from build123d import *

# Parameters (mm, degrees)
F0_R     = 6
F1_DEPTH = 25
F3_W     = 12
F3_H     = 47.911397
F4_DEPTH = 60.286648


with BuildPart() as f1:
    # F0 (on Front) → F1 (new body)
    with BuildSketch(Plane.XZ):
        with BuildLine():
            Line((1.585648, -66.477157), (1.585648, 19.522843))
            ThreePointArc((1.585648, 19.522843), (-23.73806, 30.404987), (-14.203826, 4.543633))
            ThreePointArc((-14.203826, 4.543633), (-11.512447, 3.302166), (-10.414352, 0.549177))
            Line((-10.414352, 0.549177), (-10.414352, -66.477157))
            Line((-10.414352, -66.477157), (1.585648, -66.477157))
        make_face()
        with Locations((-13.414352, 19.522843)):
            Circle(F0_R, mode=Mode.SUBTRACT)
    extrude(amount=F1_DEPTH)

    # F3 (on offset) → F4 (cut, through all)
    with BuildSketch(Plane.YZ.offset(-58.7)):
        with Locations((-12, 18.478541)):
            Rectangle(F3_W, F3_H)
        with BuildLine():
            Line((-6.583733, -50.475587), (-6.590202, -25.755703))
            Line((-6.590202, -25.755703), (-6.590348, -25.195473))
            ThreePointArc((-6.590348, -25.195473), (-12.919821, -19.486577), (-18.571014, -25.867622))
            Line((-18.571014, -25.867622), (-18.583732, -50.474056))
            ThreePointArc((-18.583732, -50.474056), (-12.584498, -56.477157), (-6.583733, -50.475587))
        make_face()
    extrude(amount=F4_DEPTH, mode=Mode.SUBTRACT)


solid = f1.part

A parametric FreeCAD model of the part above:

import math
import FreeCAD as App
import Part
import Sketcher

V = App.Vector
Q = App.Units.Quantity


def add_polygon(sketch, points):
    """Adds a closed chain of lines whose ends are joined by coincident constraints."""
    first, n = sketch.GeometryCount, len(points)
    for a, b in zip(points, points[1:] + points[:1]):
        sketch.addGeometry(Part.LineSegment(App.Vector(*a, 0), App.Vector(*b, 0)), False)
    for i in range(n):
        sketch.addConstraint(Sketcher.Constraint("Coincident", first + i, 2, first + (i + 1) % n, 1))

doc = App.newDocument("Part")
body = doc.addObject("PartDesign::Body", "Body")

# Sketch on XZ plane
sketch1 = body.newObject("Sketcher::SketchObject", "Sketch")
sketch1.AttachmentSupport = (doc.getObject("XZ_Plane"), [""])
sketch1.MapMode = "FlatFace"
sketch1.addGeometry([
    Part.LineSegment(V(1.6, -66.5, 0), V(1.6, 19.5, 0)),  # 0
    Part.ArcOfCircle(Part.Circle(V(-13.4, 19.5, 0), V(0, 0, 1), 15), math.radians(0), math.radians(267)),  # 1
    Part.ArcOfCircle(Part.Circle(V(-14.4, 0.5, 0), V(0, 0, 1), 4), math.radians(0), math.radians(87)),  # 2
    Part.LineSegment(V(-10.4, 0.5, 0), V(-10.4, -66.5, 0)),  # 3
    Part.LineSegment(V(-10.4, -66.5, 0), V(1.6, -66.5, 0)),  # 4
    Part.Circle(V(-13.4, 19.5, 0), V(0, 0, 1), 6),  # 5
], False)
sketch1.addConstraint([
    Sketcher.Constraint("Tangent", 0, 2, 1, 1),
    Sketcher.Constraint("Tangent", 1, 2, 2, 2),
    Sketcher.Constraint("Tangent", 2, 1, 3, 1),
    Sketcher.Constraint("Coincident", 3, 2, 4, 1),
    Sketcher.Constraint("Coincident", 4, 2, 0, 1),
    Sketcher.Constraint("Vertical", 0),
    Sketcher.Constraint("Vertical", 3),
    Sketcher.Constraint("Horizontal", 4),
    Sketcher.Constraint("Coincident", 5, 3, 1, 3),
    Sketcher.Constraint("Diameter", 5, Q("12 mm")),
    Sketcher.Constraint("Radius", 1, Q("15 mm")),
    Sketcher.Constraint("Radius", 2, Q("4 mm")),
    Sketcher.Constraint("DistanceX", 4, 1, 4, 2, Q("12 mm")),
    Sketcher.Constraint("DistanceY", 0, 1, 0, 2, Q("86 mm")),
    Sketcher.Constraint("DistanceX", 2, 3, -1, 1, Q("14.414352 mm")),
    Sketcher.Constraint("DistanceY", -1, 1, 1, 3, Q("19.522843 mm")),
])
pad1 = body.newObject("PartDesign::Pad", "Pad")
pad1.Profile = sketch1
pad1.Length = 25

# Sketch on YZ plane
sketch2 = body.newObject("Sketcher::SketchObject", "Sketch001")
sketch2.AttachmentSupport = (doc.getObject("YZ_Plane"), [""])
sketch2.MapMode = "FlatFace"
sketch2.AttachmentOffset = App.Placement(V(0, 0, -58.7), App.Rotation())
add_polygon(sketch2, [(-18, 42.4), (-18, -5.5), (-6, -5.5), (-6, 42.4)])  # lines 0-3
sketch2.addGeometry(Part.LineSegment(V(-6.6, -50.5, 0), V(-6.6, -25.8, 0)), False)  # 4
sketch2.addGeometry(Part.LineSegment(V(-6.6, -25.8, 0), V(-6.6, -25.2, 0)), False)  # 5
sketch2.addGeometry(Part.ArcOfCircle(Part.Circle(V(-12.6, -25.5, 0), V(0, 0, 1), 6), math.radians(3), math.radians(184)), False)  # 6
sketch2.addGeometry(Part.LineSegment(V(-18.6, -25.9, 0), V(-18.6, -50.5, 0)), False)  # 7
sketch2.addGeometry(Part.ArcOfCircle(Part.Circle(V(-12.6, -50.5, 0), V(0, 0, 1), 6), math.radians(180), math.radians(360)), False)  # 8
sketch2.addConstraint([
    Sketcher.Constraint("Coincident", 4, 2, 5, 1),
    Sketcher.Constraint("Coincident", 5, 2, 6, 1),
    Sketcher.Constraint("Coincident", 6, 2, 7, 1),
    Sketcher.Constraint("Tangent", 7, 2, 8, 1),
    Sketcher.Constraint("Tangent", 8, 2, 4, 1),
    Sketcher.Constraint("Vertical", 0),
    Sketcher.Constraint("Horizontal", 1),
    Sketcher.Constraint("Vertical", 2),
    Sketcher.Constraint("Horizontal", 3),
    Sketcher.Constraint("Equal", 6, 8),
    Sketcher.Constraint("Parallel", 4, 5),
    Sketcher.Constraint("Vertical", 6, 3, 8, 3),
    Sketcher.Constraint("Radius", 6, Q("6 mm")),
    Sketcher.Constraint("DistanceX", 1, 1, 1, 2, Q("12 mm")),
    Sketcher.Constraint("DistanceX", 0, 2, -1, 1, Q("18 mm")),
    Sketcher.Constraint("DistanceY", 8, 3, 6, 3, Q("25 mm")),
    Sketcher.Constraint("DistanceY", 6, 3, 0, 2, Q("19.999999 mm")),
    Sketcher.Constraint("DistanceX", 4, 2, -1, 1, Q("6.590202 mm")),
    Sketcher.Constraint("DistanceY", 8, 3, 7, 2, Q("0.003101 mm")),
    Sketcher.Constraint("Distance", 5, Q("0.56023 mm")),
    Sketcher.Constraint("DistanceY", 0, 2, 0, 1, Q("47.911397 mm")),
    Sketcher.Constraint("DistanceY", -1, 1, 2, 2, Q("42.434239 mm")),
    Sketcher.Constraint("DistanceX", 6, 3, 4, 2, Q("5.99353 mm")),
])
pocket1 = body.newObject("PartDesign::Pocket", "Pocket")
pocket1.Profile = sketch2
pocket1.Type = "ThroughAll"
pocket1.Reversed = True

doc.recompute()
